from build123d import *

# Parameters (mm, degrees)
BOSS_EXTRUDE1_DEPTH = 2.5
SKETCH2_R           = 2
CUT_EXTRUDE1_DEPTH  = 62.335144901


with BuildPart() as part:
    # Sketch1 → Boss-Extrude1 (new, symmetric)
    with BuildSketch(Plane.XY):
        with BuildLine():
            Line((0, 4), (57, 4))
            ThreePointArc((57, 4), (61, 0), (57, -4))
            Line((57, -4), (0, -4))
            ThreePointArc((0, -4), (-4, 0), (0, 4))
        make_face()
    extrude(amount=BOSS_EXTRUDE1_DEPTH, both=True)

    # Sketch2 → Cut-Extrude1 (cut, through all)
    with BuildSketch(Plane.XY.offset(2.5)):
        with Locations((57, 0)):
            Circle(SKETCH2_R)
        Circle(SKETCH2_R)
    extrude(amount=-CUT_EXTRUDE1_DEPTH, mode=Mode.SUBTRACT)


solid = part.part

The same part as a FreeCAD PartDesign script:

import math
import FreeCAD as App
import Part
import Sketcher
from FreeCAD import Vector
Q = App.Units.Quantity

doc = App.newDocument("Part")
body = doc.addObject("PartDesign::Body", "Body")

# Sketch on XY plane
sketch1 = body.newObject("Sketcher::SketchObject", "Sketch")
sketch1.AttachmentSupport = (doc.getObject("XY_Plane"), [""])
sketch1.MapMode = "FlatFace"
sketch1.addGeometry(Part.LineSegment(Vector(57, 4, 0), Vector(0, 4, 0)), False)
sketch1.addGeometry(Part.ArcOfCircle(Part.Circle(Vector(0, 0, 0), Vector(0, 0, 1), 4), math.radians(90), math.radians(270)), False)
sketch1.addGeometry(Part.LineSegment(Vector(0, -4, 0), Vector(57, -4, 0)), False)
sketch1.addGeometry(Part.ArcOfCircle(Part.Circle(Vector(57, 0, 0), Vector(0, 0, 1), 4), math.radians(-90), math.radians(90)), False)
sketch1.addConstraint(Sketcher.Constraint("Tangent", 0, 2, 1, 1))
sketch1.addConstraint(Sketcher.Constraint("Tangent", 1, 2, 2, 1))
sketch1.addConstraint(Sketcher.Constraint("Tangent", 2, 2, 3, 1))
sketch1.addConstraint(Sketcher.Constraint("Tangent", 3, 2, 0, 1))
sketch1.addConstraint(Sketcher.Constraint("Horizontal", 0))
sketch1.addConstraint(Sketcher.Constraint("Horizontal", 2))
sketch1.addConstraint(Sketcher.Constraint("Coincident", 1, 3, -1, 1))
sketch1.addConstraint(Sketcher.Constraint("Radius", 1, Q("4 mm")))
sketch1.addConstraint(Sketcher.Constraint("DistanceX", 0, 2, 0, 1, Q("57 mm")))
pad1 = body.newObject("PartDesign::Pad", "Pad")
pad1.Profile = sketch1
pad1.Length = 5
pad1.Midplane = True

# Sketch on XY plane
sketch2 = body.newObject("Sketcher::SketchObject", "Sketch001")
sketch2.AttachmentSupport = (doc.getObject("XY_Plane"), [""])
sketch2.MapMode = "FlatFace"
sketch2.AttachmentOffset = App.Placement(Vector(0, 0, 2.5), App.Rotation())
sketch2.addGeometry(Part.Circle(Vector(57, 0, 0), Vector(0, 0, 1), 2), False)
sketch2.addGeometry(Part.Circle(Vector(0, 0, 0), Vector(0, 0, 1), 2), False)
sketch2.addConstraint(Sketcher.Constraint("Coincident", 1, 3, -1, 1))
sketch2.addConstraint(Sketcher.Constraint("Equal", 0, 1))
sketch2.addConstraint(Sketcher.Constraint("PointOnObject", 0, 3, -1))
sketch2.addConstraint(Sketcher.Constraint("Diameter", 0, Q("4 mm")))
sketch2.addConstraint(Sketcher.Constraint("DistanceX", -1, 1, 0, 3, Q("57 mm")))
pocket1 = body.newObject("PartDesign::Pocket", "Pocket")
pocket1.Profile = sketch2
pocket1.Type = "ThroughAll"

doc.recompute()
